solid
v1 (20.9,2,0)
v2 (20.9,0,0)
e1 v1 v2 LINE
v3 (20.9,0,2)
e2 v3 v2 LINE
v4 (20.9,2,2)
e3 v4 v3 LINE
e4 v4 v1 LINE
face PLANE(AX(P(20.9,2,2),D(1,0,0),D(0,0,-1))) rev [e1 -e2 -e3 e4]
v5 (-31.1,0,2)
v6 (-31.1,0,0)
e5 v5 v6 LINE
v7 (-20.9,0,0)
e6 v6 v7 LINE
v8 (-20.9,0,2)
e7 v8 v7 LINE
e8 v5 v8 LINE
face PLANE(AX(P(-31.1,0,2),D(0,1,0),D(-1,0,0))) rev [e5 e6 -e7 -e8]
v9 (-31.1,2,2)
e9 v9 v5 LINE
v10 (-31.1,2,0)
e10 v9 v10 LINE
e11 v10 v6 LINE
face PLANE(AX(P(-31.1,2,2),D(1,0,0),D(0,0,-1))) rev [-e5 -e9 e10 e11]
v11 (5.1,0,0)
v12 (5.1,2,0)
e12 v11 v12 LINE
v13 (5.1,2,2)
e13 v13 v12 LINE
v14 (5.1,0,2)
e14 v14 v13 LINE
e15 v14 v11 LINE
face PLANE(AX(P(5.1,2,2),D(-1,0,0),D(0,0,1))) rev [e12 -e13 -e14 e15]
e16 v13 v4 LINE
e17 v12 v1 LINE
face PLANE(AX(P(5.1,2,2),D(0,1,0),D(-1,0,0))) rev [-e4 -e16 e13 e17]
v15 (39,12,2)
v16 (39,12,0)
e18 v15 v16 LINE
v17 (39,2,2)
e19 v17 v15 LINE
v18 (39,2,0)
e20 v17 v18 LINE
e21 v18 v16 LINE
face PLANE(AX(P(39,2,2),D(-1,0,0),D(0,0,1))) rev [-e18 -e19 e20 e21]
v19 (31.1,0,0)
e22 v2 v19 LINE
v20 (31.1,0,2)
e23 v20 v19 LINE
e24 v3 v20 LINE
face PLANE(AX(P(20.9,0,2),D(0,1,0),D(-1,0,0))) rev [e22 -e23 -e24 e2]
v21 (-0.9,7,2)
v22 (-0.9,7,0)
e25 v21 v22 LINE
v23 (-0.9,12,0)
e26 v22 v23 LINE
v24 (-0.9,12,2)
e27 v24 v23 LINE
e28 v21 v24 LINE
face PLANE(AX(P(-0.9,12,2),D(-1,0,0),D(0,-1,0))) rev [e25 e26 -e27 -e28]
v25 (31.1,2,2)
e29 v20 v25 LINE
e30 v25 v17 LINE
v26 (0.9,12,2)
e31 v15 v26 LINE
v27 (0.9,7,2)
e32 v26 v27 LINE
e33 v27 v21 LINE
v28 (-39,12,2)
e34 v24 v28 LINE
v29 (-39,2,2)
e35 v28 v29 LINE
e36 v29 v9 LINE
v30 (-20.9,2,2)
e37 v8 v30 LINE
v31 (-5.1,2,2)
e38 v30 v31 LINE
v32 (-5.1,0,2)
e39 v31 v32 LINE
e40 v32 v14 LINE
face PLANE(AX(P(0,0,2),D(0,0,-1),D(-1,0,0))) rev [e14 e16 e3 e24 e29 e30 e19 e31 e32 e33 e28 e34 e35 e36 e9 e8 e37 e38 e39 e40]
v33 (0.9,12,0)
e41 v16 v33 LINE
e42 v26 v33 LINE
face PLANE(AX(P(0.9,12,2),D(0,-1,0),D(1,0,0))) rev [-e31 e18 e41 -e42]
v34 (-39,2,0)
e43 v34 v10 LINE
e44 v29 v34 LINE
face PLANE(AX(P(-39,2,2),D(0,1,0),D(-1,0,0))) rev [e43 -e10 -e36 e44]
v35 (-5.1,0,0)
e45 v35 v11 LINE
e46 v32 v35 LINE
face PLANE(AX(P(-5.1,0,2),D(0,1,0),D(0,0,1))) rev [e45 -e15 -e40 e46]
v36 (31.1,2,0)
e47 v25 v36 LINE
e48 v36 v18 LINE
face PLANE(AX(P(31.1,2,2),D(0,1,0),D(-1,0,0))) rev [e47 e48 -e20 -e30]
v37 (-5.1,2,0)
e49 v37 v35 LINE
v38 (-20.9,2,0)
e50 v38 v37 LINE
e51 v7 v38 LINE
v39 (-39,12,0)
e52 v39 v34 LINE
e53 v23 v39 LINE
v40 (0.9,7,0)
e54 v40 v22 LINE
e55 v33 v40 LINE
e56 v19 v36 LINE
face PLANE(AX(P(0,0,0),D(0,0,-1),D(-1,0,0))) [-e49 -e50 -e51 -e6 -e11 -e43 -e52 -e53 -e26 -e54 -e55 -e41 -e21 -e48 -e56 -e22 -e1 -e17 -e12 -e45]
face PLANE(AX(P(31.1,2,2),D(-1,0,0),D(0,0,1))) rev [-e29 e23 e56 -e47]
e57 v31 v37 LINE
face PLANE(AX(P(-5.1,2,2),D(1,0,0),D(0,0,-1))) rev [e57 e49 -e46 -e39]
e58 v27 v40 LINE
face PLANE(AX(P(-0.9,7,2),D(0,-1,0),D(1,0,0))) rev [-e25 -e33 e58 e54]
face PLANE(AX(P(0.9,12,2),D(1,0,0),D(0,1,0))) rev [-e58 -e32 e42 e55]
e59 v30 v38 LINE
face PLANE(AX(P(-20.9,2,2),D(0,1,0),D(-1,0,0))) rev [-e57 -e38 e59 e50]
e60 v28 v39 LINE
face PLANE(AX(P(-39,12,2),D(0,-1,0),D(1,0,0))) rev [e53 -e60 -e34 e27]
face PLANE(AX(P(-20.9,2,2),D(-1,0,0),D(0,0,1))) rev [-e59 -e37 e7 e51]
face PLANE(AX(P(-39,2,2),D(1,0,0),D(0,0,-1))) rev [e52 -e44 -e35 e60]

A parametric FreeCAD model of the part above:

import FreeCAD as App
import Part
import Sketcher
from FreeCAD import Vector
Q = App.Units.Quantity


def add_polygon(sketch, points):
    """Adds a closed chain of lines whose ends are joined by coincident constraints."""
    first, n = sketch.GeometryCount, len(points)
    for a, b in zip(points, points[1:] + points[:1]):
        sketch.addGeometry(Part.LineSegment(App.Vector(*a, 0), App.Vector(*b, 0)), False)
    for i in range(n):
        sketch.addConstraint(Sketcher.Constraint("Coincident", first + i, 2, first + (i + 1) % n, 1))

doc = App.newDocument("Part")
params = doc.addObject("Spreadsheet::Sheet", "Params")
for row, (alias, value) in enumerate([
    ("sketch1_height", "2 mm"),
    ("sketch1_height2", "10 mm"),
    ("sketch1_height3", "5 mm"),
    ("sketch1_width", "7.9 mm"),
    ("sketch1_width2", "10.2 mm"),
    ("pad1_length", "2 mm"),
], start=1):
    params.set(f"A{row}", alias)
    params.set(f"B{row}", "=" + value)
    params.setAlias(f"B{row}", alias)

body = doc.addObject("PartDesign::Body", "Body")

sketch1 = doc.addObject("Sketcher::SketchObject", "Sketch")
body.addObject(sketch1)
sketch1.AttachmentSupport = (doc.XY_Plane, [""])
sketch1.MapMode = "FlatFace"
add_polygon(sketch1, [(-39, 2), (-31.1, 2), (-31.1, 0), (-20.9, 0), (-20.9, 2), (-5.1, 2), (-5.1, 0), (5.1, 0), (5.1, 2), (20.9, 2), (20.9, 0), (31.1, 0), (31.1, 2), (39, 2), (39, 12), (0.9, 12), (0.9, 7), (-0.9, 7), (-0.9, 12), (-39, 12)])
sketch1.addConstraint([
    Sketcher.Constraint("Horizontal", 0),
    Sketcher.Constraint("Vertical", 1),
    Sketcher.Constraint("Horizontal", 2),
    Sketcher.Constraint("Vertical", 3),
    Sketcher.Constraint("Horizontal", 4),
    Sketcher.Constraint("Vertical", 5),
    Sketcher.Constraint("Horizontal", 6),
    Sketcher.Constraint("Vertical", 7),
    Sketcher.Constraint("Horizontal", 8),
    Sketcher.Constraint("Vertical", 9),
    Sketcher.Constraint("Horizontal", 10),
    Sketcher.Constraint("Vertical", 11),
    Sketcher.Constraint("Horizontal", 12),
    Sketcher.Constraint("Vertical", 13),
    Sketcher.Constraint("Horizontal", 14),
    Sketcher.Constraint("Vertical", 15),
    Sketcher.Constraint("Horizontal", 16),
    Sketcher.Constraint("Vertical", 17),
    Sketcher.Constraint("Horizontal", 18),
    Sketcher.Constraint("Vertical", 19),
    Sketcher.Constraint("Symmetric", 5, 2, 6, 2, -1, 1),
    Sketcher.Constraint("Symmetric", 2, 2, 9, 2, -1, 1),
    Sketcher.Constraint("Symmetric", 1, 2, 10, 2, -2),
    Sketcher.Constraint("Symmetric", 14, 2, 17, 2, -2),
    Sketcher.Constraint("Symmetric", 12, 2, 19, 2, -2),
    Sketcher.Constraint("Horizontal", 0, 2, 3, 2),
    Sketcher.Constraint("Horizontal", 4, 2, 7, 2),
    Sketcher.Constraint("Equal", 2, 6),
    Sketcher.Constraint("DistanceY", 1, 2, 1, 1, Q("2 mm")),
    Sketcher.Constraint("DistanceY", 13, 1, 13, 2, Q("10 mm")),
    Sketcher.Constraint("DistanceY", 15, 2, 15, 1, Q("5 mm")),
    Sketcher.Constraint("DistanceX", 0, 1, 0, 2, Q("7.9 mm")),
    Sketcher.Constraint("DistanceX", 2, 1, 2, 2, Q("10.2 mm")),
    Sketcher.Constraint("DistanceX", 4, 1, 4, 2, Q("15.8 mm")),
    Sketcher.Constraint("DistanceX", 14, 2, 14, 1, Q("38.1 mm")),
])
sketch1.setExpression("Constraints[48]", "Params.sketch1_height")
sketch1.setExpression("Constraints[49]", "Params.sketch1_height2")
sketch1.setExpression("Constraints[50]", "Params.sketch1_height3")
sketch1.setExpression("Constraints[51]", "Params.sketch1_width")
sketch1.setExpression("Constraints[52]", "Params.sketch1_width2")
pad1 = doc.addObject("PartDesign::Pad", "Pad")
body.addObject(pad1)
pad1.Profile = sketch1
pad1.setExpression("Length", "Params.pad1_length")

doc.recompute()
